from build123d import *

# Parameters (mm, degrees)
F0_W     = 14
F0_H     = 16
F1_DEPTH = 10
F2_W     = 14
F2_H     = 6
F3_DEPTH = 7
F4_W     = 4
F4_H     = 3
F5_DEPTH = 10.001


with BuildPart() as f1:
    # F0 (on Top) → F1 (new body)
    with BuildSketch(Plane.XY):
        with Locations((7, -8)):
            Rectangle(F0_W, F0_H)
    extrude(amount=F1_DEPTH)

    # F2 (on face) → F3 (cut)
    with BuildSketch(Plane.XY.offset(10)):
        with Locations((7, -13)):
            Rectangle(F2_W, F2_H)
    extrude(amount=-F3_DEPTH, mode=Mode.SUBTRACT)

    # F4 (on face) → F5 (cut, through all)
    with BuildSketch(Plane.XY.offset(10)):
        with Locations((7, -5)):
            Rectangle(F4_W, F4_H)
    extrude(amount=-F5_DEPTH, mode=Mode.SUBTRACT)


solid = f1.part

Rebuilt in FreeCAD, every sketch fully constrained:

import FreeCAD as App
import Part
import Sketcher
Q = App.Units.Quantity

doc = App.newDocument("Part")
body = doc.addObject("PartDesign::Body", "Body")

sketch1 = doc.addObject("Sketcher::SketchObject", "Sketch")
body.addObject(sketch1)
sketch1.AttachmentSupport = (doc.XY_Plane, [""])
sketch1.MapMode = "FlatFace"
sketch1.addGeometry([
    Part.LineSegment(App.Vector(0, 0, 0), App.Vector(0, -16, 0)),
    Part.LineSegment(App.Vector(0, -16, 0), App.Vector(14, -16, 0)),
    Part.LineSegment(App.Vector(14, -16, 0), App.Vector(14, 0, 0)),
    Part.LineSegment(App.Vector(14, 0, 0), App.Vector(0, 0, 0)),
], False)
sketch1.addConstraint([
    Sketcher.Constraint("Coincident", 0, 2, 1, 1),
    Sketcher.Constraint("Coincident", 1, 2, 2, 1),
    Sketcher.Constraint("Coincident", 2, 2, 3, 1),
    Sketcher.Constraint("Coincident", 3, 2, 0, 1),
    Sketcher.Constraint("Vertical", 0),
    Sketcher.Constraint("Horizontal", 1),
    Sketcher.Constraint("Vertical", 2),
    Sketcher.Constraint("Horizontal", 3),
    Sketcher.Constraint("Coincident", 3, 2, -1, 1),
    Sketcher.Constraint("DistanceX", 1, 1, 1, 2, Q("14 mm")),
    Sketcher.Constraint("DistanceY", 0, 2, 0, 1, Q("16 mm")),
])
pad1 = doc.addObject("PartDesign::Pad", "Pad")
body.addObject(pad1)
pad1.Profile = sketch1
pad1.Length = 10

sketch2 = doc.addObject("Sketcher::SketchObject", "Sketch001")
body.addObject(sketch2)
sketch2.AttachmentSupport = (doc.XY_Plane, [""])
sketch2.MapMode = "FlatFace"
sketch2.AttachmentOffset = App.Placement(App.Vector(0, 0, 10), App.Rotation())
sketch2.addGeometry([
    Part.LineSegment(App.Vector(0, -10, 0), App.Vector(0, -16, 0)),
    Part.LineSegment(App.Vector(0, -16, 0), App.Vector(14, -16, 0)),
    Part.LineSegment(App.Vector(14, -16, 0), App.Vector(14, -10, 0)),
    Part.LineSegment(App.Vector(14, -10, 0), App.Vector(0, -10, 0)),
], False)
sketch2.addConstraint([
    Sketcher.Constraint("Coincident", 0, 2, 1, 1),
    Sketcher.Constraint("Coincident", 1, 2, 2, 1),
    Sketcher.Constraint("Coincident", 2, 2, 3, 1),
    Sketcher.Constraint("Coincident", 3, 2, 0, 1),
    Sketcher.Constraint("Vertical", 0),
    Sketcher.Constraint("Horizontal", 1),
    Sketcher.Constraint("Vertical", 2),
    Sketcher.Constraint("Horizontal", 3),
    Sketcher.Constraint("PointOnObject", 0, 2, -2),
    Sketcher.Constraint("DistanceX", 1, 1, 1, 2, Q("14 mm")),
    Sketcher.Constraint("DistanceY", 0, 2, 0, 1, Q("6 mm")),
    Sketcher.Constraint("DistanceY", 0, 2, -1, 1, Q("16 mm")),
])
pocket1 = doc.addObject("PartDesign::Pocket", "Pocket")
body.addObject(pocket1)
pocket1.Profile = sketch2
pocket1.Length = 7

sketch3 = doc.addObject("Sketcher::SketchObject", "Sketch002")
body.addObject(sketch3)
sketch3.AttachmentSupport = (doc.XY_Plane, [""])
sketch3.MapMode = "FlatFace"
sketch3.AttachmentOffset = App.Placement(App.Vector(0, 0, 10), App.Rotation())
sketch3.addGeometry([
    Part.LineSegment(App.Vector(5, -3.5, 0), App.Vector(5, -6.5, 0)),
    Part.LineSegment(App.Vector(5, -6.5, 0), App.Vector(9, -6.5, 0)),
    Part.LineSegment(App.Vector(9, -6.5, 0), App.Vector(9, -3.5, 0)),
    Part.LineSegment(App.Vector(9, -3.5, 0), App.Vector(5, -3.5, 0)),
], False)
sketch3.addConstraint([
    Sketcher.Constraint("Coincident", 0, 2, 1, 1),
    Sketcher.Constraint("Coincident", 1, 2, 2, 1),
    Sketcher.Constraint("Coincident", 2, 2, 3, 1),
    Sketcher.Constraint("Coincident", 3, 2, 0, 1),
    Sketcher.Constraint("Vertical", 0),
    Sketcher.Constraint("Horizontal", 1),
    Sketcher.Constraint("Vertical", 2),
    Sketcher.Constraint("Horizontal", 3),
    Sketcher.Constraint("DistanceX", 1, 1, 1, 2, Q("4 mm")),
    Sketcher.Constraint("DistanceY", 0, 2, 0, 1, Q("3 mm")),
    Sketcher.Constraint("DistanceX", -1, 1, 0, 2, Q("5 mm")),
    Sketcher.Constraint("DistanceY", 0, 2, -1, 1, Q("6.5 mm")),
])
pocket2 = doc.addObject("PartDesign::Pocket", "Pocket001")
body.addObject(pocket2)
pocket2.Profile = sketch3
pocket2.Type = "ThroughAll"

doc.recompute()
